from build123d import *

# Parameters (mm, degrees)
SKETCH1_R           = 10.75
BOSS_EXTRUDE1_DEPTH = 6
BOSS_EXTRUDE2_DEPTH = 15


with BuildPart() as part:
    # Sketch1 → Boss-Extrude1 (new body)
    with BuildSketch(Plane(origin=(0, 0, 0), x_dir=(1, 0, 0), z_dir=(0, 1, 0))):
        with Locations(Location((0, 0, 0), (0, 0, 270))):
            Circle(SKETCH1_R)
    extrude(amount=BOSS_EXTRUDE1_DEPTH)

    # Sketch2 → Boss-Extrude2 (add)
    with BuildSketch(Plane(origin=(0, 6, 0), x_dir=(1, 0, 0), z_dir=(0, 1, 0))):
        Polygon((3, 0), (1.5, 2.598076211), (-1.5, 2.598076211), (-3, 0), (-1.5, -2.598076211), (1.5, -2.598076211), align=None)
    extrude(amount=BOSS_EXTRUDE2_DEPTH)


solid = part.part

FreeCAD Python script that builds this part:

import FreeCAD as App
import Part
import Sketcher
Q = App.Units.Quantity


def add_polygon(sketch, points):
    """Adds a closed chain of lines whose ends are joined by coincident constraints."""
    first, n = sketch.GeometryCount, len(points)
    for a, b in zip(points, points[1:] + points[:1]):
        sketch.addGeometry(Part.LineSegment(App.Vector(*a, 0), App.Vector(*b, 0)), False)
    for i in range(n):
        sketch.addConstraint(Sketcher.Constraint("Coincident", first + i, 2, first + (i + 1) % n, 1))

doc = App.newDocument("Part")
body = doc.addObject("PartDesign::Body", "Body")

sketch1 = doc.addObject("Sketcher::SketchObject", "Sketch")
body.addObject(sketch1)
sketch1.AttachmentSupport = (doc.XZ_Plane, [""])
sketch1.MapMode = "FlatFace"
sketch1.addGeometry(Part.Circle(App.Vector(0, 0, 0), App.Vector(0, 0, 1), 11), False)
sketch1.addConstraint(Sketcher.Constraint("Coincident", 0, 3, -1, 1))
sketch1.addConstraint(Sketcher.Constraint("Diameter", 0, 21.5))
pad1 = doc.addObject("PartDesign::Pad", "Pad")
body.addObject(pad1)
pad1.Profile = sketch1
pad1.Length = 6
pad1.Reversed = True

sketch2 = doc.addObject("Sketcher::SketchObject", "Sketch001")
body.addObject(sketch2)
sketch2.AttachmentSupport = (doc.XZ_Plane, [""])
sketch2.MapMode = "FlatFace"
sketch2.AttachmentOffset = App.Placement(App.Vector(0, 0, -6), App.Rotation())
add_polygon(sketch2, [(3, 0), (1.5, -2.6), (-1.5, -2.6), (-3, 0), (-1.5, 2.6), (1.5, 2.6)])
sketch2.addConstraint(Sketcher.Constraint("Horizontal", 1))
sketch2.addConstraint(Sketcher.Constraint("Horizontal", 4))
sketch2.addConstraint(Sketcher.Constraint("Symmetric", 0, 2, 3, 2, -1, 1))
sketch2.addConstraint(Sketcher.Constraint("Symmetric", 2, 2, 5, 2, -1, 1))
sketch2.addConstraint(Sketcher.Constraint("PointOnObject", 2, 2, -1))
sketch2.addConstraint(Sketcher.Constraint("Parallel", 2, 5))
sketch2.addConstraint(Sketcher.Constraint("Vertical", 1, 2, 3, 2))
sketch2.addConstraint(Sketcher.Constraint("DistanceX", 1, 2, 1, 1, 3.0))
sketch2.addConstraint(Sketcher.Constraint("Angle", 0, Q("-120 deg")))
sketch2.addConstraint(Sketcher.Constraint("Distance", 0, 3.0))
pad2 = doc.addObject("PartDesign::Pad", "Pad001")
body.addObject(pad2)
pad2.Profile = sketch2
pad2.Length = 15
pad2.Reversed = True

doc.recompute()
